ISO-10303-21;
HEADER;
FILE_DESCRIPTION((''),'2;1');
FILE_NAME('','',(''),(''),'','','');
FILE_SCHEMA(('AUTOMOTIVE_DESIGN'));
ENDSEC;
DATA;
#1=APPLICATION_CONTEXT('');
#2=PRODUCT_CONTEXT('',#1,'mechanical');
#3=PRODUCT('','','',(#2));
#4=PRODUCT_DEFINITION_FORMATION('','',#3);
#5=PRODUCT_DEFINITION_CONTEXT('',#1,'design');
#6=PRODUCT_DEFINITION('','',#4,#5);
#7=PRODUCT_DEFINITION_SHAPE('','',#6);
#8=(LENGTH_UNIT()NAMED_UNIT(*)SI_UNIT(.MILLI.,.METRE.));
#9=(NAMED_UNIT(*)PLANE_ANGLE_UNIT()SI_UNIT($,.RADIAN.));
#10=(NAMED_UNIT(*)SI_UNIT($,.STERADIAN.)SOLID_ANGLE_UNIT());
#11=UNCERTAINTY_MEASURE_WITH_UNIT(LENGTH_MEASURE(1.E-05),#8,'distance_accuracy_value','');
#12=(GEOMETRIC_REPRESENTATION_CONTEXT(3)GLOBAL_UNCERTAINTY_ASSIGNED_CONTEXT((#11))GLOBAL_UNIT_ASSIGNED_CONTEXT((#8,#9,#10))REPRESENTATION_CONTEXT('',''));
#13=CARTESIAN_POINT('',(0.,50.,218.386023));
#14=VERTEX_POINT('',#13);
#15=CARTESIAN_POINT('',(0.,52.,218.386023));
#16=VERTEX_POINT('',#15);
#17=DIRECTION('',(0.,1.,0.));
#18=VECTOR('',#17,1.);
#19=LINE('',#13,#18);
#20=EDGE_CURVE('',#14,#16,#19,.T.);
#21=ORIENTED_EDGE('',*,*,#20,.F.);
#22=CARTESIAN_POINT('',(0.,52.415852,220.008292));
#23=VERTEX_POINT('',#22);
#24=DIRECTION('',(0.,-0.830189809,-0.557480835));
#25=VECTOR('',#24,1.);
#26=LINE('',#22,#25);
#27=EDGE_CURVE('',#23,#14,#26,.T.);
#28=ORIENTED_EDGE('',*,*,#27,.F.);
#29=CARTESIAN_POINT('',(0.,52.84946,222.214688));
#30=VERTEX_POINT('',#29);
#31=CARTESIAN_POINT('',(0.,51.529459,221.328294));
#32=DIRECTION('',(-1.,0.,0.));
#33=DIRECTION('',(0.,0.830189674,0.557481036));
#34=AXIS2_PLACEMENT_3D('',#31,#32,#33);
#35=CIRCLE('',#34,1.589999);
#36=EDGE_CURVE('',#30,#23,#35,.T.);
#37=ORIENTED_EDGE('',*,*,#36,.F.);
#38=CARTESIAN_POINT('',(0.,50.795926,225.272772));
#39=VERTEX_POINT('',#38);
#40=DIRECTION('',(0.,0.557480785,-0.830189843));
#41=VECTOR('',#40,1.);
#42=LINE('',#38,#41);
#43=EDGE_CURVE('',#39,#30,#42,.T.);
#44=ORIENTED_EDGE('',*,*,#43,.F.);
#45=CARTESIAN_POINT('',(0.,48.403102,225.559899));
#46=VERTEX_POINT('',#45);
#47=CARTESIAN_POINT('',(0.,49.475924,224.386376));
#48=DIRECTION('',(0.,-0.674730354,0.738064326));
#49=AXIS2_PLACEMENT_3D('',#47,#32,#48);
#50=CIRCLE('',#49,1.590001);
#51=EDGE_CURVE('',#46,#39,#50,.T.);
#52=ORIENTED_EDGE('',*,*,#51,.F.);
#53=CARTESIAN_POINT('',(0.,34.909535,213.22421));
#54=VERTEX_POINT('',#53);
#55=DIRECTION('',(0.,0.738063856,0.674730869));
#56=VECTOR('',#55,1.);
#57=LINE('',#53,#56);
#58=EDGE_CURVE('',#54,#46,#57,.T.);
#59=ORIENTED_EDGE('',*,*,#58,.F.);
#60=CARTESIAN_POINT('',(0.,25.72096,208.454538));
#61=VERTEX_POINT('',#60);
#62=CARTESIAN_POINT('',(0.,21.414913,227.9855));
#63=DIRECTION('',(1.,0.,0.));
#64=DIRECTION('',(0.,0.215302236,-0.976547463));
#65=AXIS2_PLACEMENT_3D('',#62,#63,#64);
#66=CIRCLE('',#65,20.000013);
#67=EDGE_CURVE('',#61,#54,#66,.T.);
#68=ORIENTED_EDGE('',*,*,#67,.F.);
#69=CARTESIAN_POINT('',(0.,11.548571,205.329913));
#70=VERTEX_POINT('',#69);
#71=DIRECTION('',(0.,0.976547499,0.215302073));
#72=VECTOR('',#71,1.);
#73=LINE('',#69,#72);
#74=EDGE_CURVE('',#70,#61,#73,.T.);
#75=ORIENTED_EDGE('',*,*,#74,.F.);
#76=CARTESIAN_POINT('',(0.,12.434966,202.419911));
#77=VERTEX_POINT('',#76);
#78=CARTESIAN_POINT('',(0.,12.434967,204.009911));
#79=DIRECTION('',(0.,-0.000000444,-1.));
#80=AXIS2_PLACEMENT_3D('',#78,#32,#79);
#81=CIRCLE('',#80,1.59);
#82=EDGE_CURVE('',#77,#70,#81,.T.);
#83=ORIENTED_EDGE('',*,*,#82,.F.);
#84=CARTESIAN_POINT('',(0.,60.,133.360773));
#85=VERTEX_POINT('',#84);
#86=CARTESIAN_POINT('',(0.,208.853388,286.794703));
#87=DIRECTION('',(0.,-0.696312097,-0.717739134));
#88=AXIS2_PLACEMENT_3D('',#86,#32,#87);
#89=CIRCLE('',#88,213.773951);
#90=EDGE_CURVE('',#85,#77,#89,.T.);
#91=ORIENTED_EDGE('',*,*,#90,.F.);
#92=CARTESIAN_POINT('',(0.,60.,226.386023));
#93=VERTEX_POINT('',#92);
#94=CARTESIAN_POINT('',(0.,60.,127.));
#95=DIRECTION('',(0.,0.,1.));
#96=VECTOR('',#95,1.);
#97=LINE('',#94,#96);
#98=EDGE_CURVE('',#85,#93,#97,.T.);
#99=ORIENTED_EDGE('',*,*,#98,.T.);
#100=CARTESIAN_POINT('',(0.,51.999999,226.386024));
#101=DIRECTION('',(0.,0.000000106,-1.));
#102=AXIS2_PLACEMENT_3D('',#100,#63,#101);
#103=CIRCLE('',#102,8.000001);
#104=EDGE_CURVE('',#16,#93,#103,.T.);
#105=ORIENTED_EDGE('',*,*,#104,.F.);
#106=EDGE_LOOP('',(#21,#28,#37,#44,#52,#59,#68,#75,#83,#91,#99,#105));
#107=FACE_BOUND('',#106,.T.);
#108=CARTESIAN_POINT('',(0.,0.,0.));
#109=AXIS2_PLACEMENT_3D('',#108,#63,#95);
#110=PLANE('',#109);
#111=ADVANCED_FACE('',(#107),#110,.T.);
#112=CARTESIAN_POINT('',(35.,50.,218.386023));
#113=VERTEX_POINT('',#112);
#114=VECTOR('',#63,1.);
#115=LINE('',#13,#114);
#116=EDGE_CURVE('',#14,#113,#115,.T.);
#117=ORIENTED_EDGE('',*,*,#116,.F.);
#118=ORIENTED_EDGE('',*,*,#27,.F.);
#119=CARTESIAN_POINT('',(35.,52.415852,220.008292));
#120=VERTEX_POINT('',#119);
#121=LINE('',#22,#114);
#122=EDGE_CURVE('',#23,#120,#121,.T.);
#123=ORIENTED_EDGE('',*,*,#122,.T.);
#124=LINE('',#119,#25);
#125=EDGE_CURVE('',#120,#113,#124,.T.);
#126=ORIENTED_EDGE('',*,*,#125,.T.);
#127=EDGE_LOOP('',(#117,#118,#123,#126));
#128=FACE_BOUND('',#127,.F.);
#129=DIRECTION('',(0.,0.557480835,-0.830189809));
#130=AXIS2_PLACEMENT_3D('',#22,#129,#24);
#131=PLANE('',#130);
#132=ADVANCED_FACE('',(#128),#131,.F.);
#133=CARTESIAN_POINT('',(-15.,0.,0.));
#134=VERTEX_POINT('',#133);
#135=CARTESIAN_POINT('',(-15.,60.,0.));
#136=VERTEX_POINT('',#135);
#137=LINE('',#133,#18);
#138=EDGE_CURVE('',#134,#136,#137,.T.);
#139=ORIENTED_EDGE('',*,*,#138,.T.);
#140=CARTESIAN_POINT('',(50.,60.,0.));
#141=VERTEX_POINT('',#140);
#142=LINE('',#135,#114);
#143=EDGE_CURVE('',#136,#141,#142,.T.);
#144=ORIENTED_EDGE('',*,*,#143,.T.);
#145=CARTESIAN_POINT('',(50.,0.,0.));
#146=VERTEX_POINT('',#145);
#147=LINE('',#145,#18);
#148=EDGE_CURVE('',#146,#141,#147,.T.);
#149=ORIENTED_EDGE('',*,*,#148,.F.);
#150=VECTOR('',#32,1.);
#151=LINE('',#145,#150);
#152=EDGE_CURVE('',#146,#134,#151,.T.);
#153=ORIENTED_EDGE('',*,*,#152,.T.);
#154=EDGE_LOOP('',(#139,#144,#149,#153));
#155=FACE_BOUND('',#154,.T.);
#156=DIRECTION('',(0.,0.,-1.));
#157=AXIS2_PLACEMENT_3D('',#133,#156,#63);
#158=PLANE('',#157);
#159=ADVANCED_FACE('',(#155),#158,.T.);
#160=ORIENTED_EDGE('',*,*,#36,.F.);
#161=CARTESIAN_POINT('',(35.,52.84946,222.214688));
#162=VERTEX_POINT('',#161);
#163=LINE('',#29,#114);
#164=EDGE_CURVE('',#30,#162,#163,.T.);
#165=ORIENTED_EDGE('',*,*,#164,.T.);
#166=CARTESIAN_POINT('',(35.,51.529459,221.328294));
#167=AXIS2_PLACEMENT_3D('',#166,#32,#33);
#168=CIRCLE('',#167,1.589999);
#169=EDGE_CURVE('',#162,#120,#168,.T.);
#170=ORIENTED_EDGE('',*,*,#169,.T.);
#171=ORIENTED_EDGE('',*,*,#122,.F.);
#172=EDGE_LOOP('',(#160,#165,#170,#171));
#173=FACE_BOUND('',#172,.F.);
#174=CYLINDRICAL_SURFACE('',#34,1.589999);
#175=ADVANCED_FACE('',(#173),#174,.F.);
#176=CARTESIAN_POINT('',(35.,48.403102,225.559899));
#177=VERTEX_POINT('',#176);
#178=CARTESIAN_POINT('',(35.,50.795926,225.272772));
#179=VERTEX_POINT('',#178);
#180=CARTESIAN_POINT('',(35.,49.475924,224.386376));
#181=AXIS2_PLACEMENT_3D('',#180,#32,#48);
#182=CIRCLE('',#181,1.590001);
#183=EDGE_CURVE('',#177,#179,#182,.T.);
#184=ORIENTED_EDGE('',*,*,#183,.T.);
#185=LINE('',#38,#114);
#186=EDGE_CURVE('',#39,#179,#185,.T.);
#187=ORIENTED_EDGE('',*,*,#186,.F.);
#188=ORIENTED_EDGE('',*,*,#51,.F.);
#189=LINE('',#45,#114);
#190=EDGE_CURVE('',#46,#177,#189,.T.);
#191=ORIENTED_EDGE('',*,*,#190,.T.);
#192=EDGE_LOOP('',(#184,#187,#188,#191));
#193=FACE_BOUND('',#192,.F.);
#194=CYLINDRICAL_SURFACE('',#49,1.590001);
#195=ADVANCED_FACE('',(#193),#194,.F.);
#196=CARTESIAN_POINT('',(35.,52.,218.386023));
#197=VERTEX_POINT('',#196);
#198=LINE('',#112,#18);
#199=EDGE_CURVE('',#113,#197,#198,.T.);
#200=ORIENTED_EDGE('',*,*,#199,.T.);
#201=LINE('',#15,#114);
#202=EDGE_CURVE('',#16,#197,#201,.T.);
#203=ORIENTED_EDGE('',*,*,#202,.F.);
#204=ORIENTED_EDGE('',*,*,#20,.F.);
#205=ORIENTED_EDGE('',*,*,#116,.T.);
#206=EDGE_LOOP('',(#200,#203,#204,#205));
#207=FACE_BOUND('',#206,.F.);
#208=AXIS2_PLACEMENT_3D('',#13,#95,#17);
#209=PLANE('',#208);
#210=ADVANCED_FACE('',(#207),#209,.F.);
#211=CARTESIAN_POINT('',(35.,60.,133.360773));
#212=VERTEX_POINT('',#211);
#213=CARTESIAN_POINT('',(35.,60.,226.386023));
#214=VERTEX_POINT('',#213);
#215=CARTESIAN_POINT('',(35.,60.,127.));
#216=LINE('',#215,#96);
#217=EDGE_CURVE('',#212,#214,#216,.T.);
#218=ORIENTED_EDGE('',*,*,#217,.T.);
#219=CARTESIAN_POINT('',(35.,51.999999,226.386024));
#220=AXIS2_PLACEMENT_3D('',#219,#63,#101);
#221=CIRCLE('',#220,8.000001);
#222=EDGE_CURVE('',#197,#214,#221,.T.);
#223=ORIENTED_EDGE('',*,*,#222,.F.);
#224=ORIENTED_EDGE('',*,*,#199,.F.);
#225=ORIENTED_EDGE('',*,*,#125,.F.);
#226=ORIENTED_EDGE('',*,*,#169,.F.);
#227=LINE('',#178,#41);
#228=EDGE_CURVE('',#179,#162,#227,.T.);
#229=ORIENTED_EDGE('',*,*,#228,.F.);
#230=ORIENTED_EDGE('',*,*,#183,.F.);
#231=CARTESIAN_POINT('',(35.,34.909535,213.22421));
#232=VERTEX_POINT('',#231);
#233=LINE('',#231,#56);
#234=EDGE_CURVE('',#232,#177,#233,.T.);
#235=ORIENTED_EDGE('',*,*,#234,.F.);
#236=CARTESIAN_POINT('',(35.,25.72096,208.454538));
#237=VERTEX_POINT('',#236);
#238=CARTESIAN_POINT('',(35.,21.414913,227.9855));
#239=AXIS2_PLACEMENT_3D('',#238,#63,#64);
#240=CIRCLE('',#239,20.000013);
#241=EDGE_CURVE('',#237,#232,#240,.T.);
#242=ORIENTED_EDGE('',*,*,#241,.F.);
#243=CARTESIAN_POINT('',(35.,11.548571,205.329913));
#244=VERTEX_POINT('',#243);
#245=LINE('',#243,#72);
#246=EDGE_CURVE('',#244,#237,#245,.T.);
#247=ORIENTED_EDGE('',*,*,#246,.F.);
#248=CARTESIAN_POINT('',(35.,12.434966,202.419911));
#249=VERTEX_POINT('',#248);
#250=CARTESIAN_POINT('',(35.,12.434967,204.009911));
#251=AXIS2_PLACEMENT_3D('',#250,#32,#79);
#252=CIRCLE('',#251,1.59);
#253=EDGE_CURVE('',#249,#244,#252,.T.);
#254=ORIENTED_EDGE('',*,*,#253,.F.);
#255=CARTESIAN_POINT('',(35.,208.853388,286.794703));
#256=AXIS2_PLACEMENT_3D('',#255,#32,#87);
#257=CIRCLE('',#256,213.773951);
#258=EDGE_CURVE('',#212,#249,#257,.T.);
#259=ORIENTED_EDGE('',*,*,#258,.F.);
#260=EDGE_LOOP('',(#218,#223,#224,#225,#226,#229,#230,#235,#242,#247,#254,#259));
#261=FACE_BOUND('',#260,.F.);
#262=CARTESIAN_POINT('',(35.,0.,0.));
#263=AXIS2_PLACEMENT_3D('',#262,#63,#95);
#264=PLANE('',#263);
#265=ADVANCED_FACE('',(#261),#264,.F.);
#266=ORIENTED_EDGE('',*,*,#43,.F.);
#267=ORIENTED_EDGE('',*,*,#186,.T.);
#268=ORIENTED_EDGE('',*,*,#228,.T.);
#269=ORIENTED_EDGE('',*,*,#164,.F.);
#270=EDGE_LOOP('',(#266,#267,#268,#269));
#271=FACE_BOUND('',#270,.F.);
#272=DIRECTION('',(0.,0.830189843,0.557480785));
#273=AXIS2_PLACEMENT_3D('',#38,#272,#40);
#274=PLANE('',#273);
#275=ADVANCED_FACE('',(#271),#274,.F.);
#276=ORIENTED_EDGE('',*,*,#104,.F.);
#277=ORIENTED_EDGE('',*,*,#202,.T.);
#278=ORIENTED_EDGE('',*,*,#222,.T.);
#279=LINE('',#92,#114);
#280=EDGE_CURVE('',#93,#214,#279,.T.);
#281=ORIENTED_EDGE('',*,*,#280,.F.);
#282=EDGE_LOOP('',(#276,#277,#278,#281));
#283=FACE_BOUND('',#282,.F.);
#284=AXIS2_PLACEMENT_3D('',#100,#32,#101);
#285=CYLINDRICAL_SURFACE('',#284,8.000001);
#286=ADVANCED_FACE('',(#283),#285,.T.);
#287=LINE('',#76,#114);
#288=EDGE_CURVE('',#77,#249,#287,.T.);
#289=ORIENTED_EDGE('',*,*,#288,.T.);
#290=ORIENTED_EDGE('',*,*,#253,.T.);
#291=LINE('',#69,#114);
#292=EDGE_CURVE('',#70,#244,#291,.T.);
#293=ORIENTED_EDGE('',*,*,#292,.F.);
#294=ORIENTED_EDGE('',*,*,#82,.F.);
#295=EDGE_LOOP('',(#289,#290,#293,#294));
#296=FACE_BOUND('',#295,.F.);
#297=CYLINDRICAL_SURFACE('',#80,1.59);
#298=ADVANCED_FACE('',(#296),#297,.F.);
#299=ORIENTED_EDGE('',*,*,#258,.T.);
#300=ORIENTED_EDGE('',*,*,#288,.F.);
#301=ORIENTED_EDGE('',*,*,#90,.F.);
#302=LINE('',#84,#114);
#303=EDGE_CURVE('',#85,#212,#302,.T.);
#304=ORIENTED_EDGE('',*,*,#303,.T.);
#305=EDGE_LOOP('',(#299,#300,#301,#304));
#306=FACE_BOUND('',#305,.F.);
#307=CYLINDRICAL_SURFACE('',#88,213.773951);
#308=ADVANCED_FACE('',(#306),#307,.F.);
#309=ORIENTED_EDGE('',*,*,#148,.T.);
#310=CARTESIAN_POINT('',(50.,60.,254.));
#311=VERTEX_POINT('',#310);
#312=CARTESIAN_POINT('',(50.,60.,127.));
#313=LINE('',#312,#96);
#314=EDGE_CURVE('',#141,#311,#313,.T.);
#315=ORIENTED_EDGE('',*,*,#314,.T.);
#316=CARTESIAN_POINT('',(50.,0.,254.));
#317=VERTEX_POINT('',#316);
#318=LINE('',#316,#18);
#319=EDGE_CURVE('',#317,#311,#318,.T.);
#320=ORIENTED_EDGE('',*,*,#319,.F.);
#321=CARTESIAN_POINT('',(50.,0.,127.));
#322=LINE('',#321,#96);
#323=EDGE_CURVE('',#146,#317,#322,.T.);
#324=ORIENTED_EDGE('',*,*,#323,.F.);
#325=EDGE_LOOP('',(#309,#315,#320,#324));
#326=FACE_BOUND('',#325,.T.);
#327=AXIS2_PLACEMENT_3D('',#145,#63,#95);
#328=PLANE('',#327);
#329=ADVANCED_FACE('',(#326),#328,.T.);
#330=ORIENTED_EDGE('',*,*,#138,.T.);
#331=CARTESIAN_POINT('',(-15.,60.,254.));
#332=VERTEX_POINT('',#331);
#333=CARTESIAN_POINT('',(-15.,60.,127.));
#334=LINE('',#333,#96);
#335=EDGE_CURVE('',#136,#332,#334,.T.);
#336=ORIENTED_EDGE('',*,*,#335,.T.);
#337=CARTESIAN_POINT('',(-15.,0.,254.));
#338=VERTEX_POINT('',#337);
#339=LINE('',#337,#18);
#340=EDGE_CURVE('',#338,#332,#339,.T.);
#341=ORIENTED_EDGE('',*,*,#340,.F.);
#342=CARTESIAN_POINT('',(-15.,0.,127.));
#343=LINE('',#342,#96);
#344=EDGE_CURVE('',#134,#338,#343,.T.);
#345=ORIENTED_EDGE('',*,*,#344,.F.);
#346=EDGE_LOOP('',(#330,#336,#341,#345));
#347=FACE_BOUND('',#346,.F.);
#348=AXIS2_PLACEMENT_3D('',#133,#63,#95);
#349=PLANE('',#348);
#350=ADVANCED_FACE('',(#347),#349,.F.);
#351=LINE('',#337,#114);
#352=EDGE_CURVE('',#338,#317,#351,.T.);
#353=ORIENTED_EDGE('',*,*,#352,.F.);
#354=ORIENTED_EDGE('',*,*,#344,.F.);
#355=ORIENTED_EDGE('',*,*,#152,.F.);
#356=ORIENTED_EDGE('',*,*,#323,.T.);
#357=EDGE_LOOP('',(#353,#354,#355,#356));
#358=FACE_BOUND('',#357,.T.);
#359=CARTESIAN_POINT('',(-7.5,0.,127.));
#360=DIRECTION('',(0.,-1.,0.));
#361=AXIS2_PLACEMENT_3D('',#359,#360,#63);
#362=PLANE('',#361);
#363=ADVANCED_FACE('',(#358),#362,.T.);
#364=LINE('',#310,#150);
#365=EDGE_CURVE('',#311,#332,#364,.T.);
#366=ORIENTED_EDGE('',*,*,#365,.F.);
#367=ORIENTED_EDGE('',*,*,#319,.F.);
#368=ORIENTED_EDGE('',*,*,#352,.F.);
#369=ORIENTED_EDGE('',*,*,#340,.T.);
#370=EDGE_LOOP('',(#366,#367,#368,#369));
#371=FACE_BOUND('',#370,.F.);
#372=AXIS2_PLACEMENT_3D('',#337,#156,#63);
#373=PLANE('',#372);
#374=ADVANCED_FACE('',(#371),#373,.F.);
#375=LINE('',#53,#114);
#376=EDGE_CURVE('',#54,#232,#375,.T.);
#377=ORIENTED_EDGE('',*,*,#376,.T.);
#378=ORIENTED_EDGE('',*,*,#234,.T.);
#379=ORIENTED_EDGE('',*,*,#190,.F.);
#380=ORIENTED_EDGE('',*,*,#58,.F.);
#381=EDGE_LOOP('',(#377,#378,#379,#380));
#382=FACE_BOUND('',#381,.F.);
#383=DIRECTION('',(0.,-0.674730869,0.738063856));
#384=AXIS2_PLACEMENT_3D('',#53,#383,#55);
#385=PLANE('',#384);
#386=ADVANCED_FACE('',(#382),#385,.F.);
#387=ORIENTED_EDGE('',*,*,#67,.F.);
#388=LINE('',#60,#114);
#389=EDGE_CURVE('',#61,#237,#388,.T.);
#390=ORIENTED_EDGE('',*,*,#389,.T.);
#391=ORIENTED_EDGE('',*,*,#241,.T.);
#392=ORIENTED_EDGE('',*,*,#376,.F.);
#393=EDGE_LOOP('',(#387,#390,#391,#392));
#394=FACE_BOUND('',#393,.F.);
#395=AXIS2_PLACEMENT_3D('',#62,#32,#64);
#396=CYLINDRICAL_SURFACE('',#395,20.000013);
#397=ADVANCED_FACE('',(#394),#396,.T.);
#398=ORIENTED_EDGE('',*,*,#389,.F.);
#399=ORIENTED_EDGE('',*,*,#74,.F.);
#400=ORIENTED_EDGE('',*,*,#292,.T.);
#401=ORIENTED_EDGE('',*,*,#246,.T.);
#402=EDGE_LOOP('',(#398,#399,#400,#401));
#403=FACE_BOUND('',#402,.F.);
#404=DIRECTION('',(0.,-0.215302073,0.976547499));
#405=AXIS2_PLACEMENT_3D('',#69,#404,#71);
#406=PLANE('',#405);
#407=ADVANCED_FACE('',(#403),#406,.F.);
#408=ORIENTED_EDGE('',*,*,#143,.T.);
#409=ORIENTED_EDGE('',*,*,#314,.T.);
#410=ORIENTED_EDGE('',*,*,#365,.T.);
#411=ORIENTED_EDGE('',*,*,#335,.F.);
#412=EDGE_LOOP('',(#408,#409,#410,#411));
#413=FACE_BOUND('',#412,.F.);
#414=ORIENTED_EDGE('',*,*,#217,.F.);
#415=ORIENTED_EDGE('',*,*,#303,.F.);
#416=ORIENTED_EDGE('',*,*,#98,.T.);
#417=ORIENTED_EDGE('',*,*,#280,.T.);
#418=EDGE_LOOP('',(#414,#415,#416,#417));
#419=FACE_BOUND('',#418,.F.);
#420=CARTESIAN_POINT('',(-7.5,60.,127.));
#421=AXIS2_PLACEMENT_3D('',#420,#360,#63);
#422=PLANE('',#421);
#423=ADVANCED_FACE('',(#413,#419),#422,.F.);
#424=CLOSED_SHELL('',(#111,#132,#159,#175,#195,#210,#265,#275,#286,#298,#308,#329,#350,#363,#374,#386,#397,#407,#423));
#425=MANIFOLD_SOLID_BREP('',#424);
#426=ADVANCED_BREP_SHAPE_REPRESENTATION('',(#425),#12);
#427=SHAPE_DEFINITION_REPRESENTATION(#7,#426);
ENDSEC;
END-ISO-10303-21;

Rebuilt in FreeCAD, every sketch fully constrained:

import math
import FreeCAD as App
import Part
import Sketcher

V = App.Vector


def add_polygon(sketch, points):
    """Adds a closed chain of lines whose ends are joined by coincident constraints."""
    first, n = sketch.GeometryCount, len(points)
    for a, b in zip(points, points[1:] + points[:1]):
        sketch.addGeometry(Part.LineSegment(App.Vector(*a, 0), App.Vector(*b, 0)), False)
    for i in range(n):
        sketch.addConstraint(Sketcher.Constraint("Coincident", first + i, 2, first + (i + 1) % n, 1))

doc = App.newDocument("Part")
body = doc.addObject("PartDesign::Body", "Body")

sketch1 = body.newObject("Sketcher::SketchObject", "Sketch")
sketch1.AttachmentSupport = (doc.getObject("YZ_Plane"), [""])
sketch1.MapMode = "FlatFace"
sketch1.addGeometry([
    Part.LineSegment(V(0, 254, 0), V(0, 0, 0)),
    Part.LineSegment(V(0, 0, 0), V(60, 0, 0)),
    Part.LineSegment(V(60, 0, 0), V(60, 133.360773, 0)),
    Part.ArcOfCircle(Part.Circle(V(208.853388, 286.794703, 0), V(0, 0, 1), 213.773951), math.radians(-156.753256), math.radians(-134.131867)),
    Part.ArcOfCircle(Part.Circle(V(12.434967, 204.009911, 0), V(0, 0, 1), 1.59), math.radians(123.881799), math.radians(269.999975)),
    Part.LineSegment(V(11.548571, 205.329913, 0), V(25.72096, 208.454538, 0)),
    Part.ArcOfCircle(Part.Circle(V(21.414913, 227.9855, 0), V(0, 0, 1), 20.000013), math.radians(-77.566741), math.radians(-47.566759)),
    Part.LineSegment(V(34.909535, 213.22421, 0), V(48.403102, 225.559899, 0)),
    Part.ArcOfCircle(Part.Circle(V(49.475924, 224.386376, 0), V(0, 0, 1), 1.590001), math.radians(33.8818), math.radians(132.433214)),
    Part.LineSegment(V(50.795926, 225.272772, 0), V(52.84946, 222.214688, 0)),
    Part.ArcOfCircle(Part.Circle(V(51.529459, 221.328294, 0), V(0, 0, 1), 1.589999), math.radians(-56.118295), math.radians(33.881773)),
    Part.LineSegment(V(52.415852, 220.008292, 0), V(50, 218.386023, 0)),
    Part.LineSegment(V(50, 218.386023, 0), V(52, 218.386023, 0)),
    Part.ArcOfCircle(Part.Circle(V(51.999999, 226.386024, 0), V(0, 0, 1), 8.000001), math.radians(-89.999994), math.radians(-0.000006)),
    Part.LineSegment(V(60, 226.386023, 0), V(60, 254, 0)),
    Part.LineSegment(V(60, 254, 0), V(0, 254, 0)),
], False)
sketch1.addConstraint([
    Sketcher.Constraint("Coincident", 0, 2, 1, 1),
    Sketcher.Constraint("Coincident", 1, 2, 2, 1),
    Sketcher.Constraint("Coincident", 2, 2, 3, 2),
    Sketcher.Constraint("Coincident", 3, 1, 4, 2),
    Sketcher.Constraint("Coincident", 4, 1, 5, 1),
    Sketcher.Constraint("Coincident", 5, 2, 6, 1),
    Sketcher.Constraint("Coincident", 6, 2, 7, 1),
    Sketcher.Constraint("Coincident", 7, 2, 8, 2),
    Sketcher.Constraint("Coincident", 8, 1, 9, 1),
    Sketcher.Constraint("Coincident", 9, 2, 10, 2),
    Sketcher.Constraint("Coincident", 10, 1, 11, 1),
    Sketcher.Constraint("Coincident", 11, 2, 12, 1),
    Sketcher.Constraint("Coincident", 12, 2, 13, 1),
    Sketcher.Constraint("Coincident", 13, 2, 14, 1),
    Sketcher.Constraint("Coincident", 14, 2, 15, 1),
    Sketcher.Constraint("Coincident", 15, 2, 0, 1),
    Sketcher.Constraint("Vertical", 0),
    Sketcher.Constraint("Horizontal", 1),
    Sketcher.Constraint("Vertical", 2),
    Sketcher.Constraint("Horizontal", 12),
    Sketcher.Constraint("Vertical", 14),
    Sketcher.Constraint("Horizontal", 15),
    Sketcher.Constraint("Coincident", 0, 2, -1, 1),
    Sketcher.Constraint("Radius", 13, 8.000001),
    Sketcher.Constraint("DistanceX", 1, 1, 1, 2, 60.0),
    Sketcher.Constraint("DistanceX", 12, 1, 12, 2, 2.0),
    Sketcher.Constraint("DistanceX", 15, 2, 15, 1, 60.0),
    Sketcher.Constraint("DistanceY", 0, 2, 0, 1, 254.0),
    Sketcher.Constraint("Radius", 4, 1.59),
    Sketcher.Constraint("Radius", 8, 1.590001),
    Sketcher.Constraint("Radius", 10, 1.589999),
    Sketcher.Constraint("DistanceX", -1, 1, 11, 2, 50.0),
    Sketcher.Constraint("Distance", 11, 2.91),
    Sketcher.Constraint("Radius", 3, 213.773951),
    Sketcher.Constraint("DistanceY", 4, 3, 4, 1, 1.320002),
    Sketcher.Constraint("DistanceX", 10, 3, 9, 2, 1.320001),
    Sketcher.Constraint("DistanceY", 10, 1, 10, 3, 1.320002),
    Sketcher.Constraint("Radius", 6, 20.000013),
    Sketcher.Constraint("DistanceY", -1, 1, 6, 3, 227.9855),
    Sketcher.Constraint("DistanceX", -1, 1, 7, 2, 48.403102),
    Sketcher.Constraint("DistanceY", -1, 1, 7, 2, 225.559899),
    Sketcher.Constraint("Distance", 5, 14.512749),
    Sketcher.Constraint("DistanceY", 2, 1, 2, 2, 133.360773),
    Sketcher.Constraint("DistanceY", 14, 1, 14, 2, 27.613977),
    Sketcher.Constraint("DistanceY", -1, 1, 4, 3, 204.009911),
    Sketcher.Constraint("DistanceX", -1, 1, 10, 3, 51.529459),
    Sketcher.Constraint("DistanceX", -1, 1, 4, 1, 11.548571),
    Sketcher.Constraint("DistanceX", -1, 1, 5, 2, 25.72096),
    Sketcher.Constraint("DistanceY", -1, 1, 6, 2, 213.22421),
    Sketcher.Constraint("DistanceY", -1, 1, 9, 2, 222.214688),
    Sketcher.Constraint("DistanceX", 4, 3, 3, 3, 196.418421),
    Sketcher.Constraint("DistanceX", 6, 3, 8, 3, 28.061011),
    Sketcher.Constraint("DistanceY", 8, 1, 13, 3, 1.113252),
])
pad1 = body.newObject("PartDesign::Pad", "Pad")
pad1.Profile = sketch1
pad1.Length = 35

sketch2 = body.newObject("Sketcher::SketchObject", "Sketch001")
sketch2.AttachmentSupport = (doc.getObject("XZ_Plane"), [""])
sketch2.MapMode = "FlatFace"
add_polygon(sketch2, [(-15, 254), (-15, 0), (0, 0), (0, 254)])
add_polygon(sketch2, [(35, 254), (35, 0), (50, 0), (50, 254)])
sketch2.addConstraint([
    Sketcher.Constraint("Vertical", 0),
    Sketcher.Constraint("Horizontal", 1),
    Sketcher.Constraint("Vertical", 2),
    Sketcher.Constraint("Horizontal", 3),
    Sketcher.Constraint("Vertical", 4),
    Sketcher.Constraint("Horizontal", 5),
    Sketcher.Constraint("Vertical", 6),
    Sketcher.Constraint("Horizontal", 7),
    Sketcher.Constraint("Coincident", 1, 2, -1, 1),
    Sketcher.Constraint("PointOnObject", 4, 2, -1),
    Sketcher.Constraint("Horizontal", 3, 2, 6, 2),
    Sketcher.Constraint("Equal", 3, 5),
    Sketcher.Constraint("DistanceX", 1, 1, 1, 2, 15.0),
    Sketcher.Constraint("DistanceY", 0, 2, 0, 1, 254.0),
    Sketcher.Constraint("DistanceX", -1, 1, 4, 2, 35.0),
])
pad2 = body.newObject("PartDesign::Pad", "Pad001")
pad2.Profile = sketch2
pad2.Length = 60
pad2.Reversed = True

doc.recompute()
